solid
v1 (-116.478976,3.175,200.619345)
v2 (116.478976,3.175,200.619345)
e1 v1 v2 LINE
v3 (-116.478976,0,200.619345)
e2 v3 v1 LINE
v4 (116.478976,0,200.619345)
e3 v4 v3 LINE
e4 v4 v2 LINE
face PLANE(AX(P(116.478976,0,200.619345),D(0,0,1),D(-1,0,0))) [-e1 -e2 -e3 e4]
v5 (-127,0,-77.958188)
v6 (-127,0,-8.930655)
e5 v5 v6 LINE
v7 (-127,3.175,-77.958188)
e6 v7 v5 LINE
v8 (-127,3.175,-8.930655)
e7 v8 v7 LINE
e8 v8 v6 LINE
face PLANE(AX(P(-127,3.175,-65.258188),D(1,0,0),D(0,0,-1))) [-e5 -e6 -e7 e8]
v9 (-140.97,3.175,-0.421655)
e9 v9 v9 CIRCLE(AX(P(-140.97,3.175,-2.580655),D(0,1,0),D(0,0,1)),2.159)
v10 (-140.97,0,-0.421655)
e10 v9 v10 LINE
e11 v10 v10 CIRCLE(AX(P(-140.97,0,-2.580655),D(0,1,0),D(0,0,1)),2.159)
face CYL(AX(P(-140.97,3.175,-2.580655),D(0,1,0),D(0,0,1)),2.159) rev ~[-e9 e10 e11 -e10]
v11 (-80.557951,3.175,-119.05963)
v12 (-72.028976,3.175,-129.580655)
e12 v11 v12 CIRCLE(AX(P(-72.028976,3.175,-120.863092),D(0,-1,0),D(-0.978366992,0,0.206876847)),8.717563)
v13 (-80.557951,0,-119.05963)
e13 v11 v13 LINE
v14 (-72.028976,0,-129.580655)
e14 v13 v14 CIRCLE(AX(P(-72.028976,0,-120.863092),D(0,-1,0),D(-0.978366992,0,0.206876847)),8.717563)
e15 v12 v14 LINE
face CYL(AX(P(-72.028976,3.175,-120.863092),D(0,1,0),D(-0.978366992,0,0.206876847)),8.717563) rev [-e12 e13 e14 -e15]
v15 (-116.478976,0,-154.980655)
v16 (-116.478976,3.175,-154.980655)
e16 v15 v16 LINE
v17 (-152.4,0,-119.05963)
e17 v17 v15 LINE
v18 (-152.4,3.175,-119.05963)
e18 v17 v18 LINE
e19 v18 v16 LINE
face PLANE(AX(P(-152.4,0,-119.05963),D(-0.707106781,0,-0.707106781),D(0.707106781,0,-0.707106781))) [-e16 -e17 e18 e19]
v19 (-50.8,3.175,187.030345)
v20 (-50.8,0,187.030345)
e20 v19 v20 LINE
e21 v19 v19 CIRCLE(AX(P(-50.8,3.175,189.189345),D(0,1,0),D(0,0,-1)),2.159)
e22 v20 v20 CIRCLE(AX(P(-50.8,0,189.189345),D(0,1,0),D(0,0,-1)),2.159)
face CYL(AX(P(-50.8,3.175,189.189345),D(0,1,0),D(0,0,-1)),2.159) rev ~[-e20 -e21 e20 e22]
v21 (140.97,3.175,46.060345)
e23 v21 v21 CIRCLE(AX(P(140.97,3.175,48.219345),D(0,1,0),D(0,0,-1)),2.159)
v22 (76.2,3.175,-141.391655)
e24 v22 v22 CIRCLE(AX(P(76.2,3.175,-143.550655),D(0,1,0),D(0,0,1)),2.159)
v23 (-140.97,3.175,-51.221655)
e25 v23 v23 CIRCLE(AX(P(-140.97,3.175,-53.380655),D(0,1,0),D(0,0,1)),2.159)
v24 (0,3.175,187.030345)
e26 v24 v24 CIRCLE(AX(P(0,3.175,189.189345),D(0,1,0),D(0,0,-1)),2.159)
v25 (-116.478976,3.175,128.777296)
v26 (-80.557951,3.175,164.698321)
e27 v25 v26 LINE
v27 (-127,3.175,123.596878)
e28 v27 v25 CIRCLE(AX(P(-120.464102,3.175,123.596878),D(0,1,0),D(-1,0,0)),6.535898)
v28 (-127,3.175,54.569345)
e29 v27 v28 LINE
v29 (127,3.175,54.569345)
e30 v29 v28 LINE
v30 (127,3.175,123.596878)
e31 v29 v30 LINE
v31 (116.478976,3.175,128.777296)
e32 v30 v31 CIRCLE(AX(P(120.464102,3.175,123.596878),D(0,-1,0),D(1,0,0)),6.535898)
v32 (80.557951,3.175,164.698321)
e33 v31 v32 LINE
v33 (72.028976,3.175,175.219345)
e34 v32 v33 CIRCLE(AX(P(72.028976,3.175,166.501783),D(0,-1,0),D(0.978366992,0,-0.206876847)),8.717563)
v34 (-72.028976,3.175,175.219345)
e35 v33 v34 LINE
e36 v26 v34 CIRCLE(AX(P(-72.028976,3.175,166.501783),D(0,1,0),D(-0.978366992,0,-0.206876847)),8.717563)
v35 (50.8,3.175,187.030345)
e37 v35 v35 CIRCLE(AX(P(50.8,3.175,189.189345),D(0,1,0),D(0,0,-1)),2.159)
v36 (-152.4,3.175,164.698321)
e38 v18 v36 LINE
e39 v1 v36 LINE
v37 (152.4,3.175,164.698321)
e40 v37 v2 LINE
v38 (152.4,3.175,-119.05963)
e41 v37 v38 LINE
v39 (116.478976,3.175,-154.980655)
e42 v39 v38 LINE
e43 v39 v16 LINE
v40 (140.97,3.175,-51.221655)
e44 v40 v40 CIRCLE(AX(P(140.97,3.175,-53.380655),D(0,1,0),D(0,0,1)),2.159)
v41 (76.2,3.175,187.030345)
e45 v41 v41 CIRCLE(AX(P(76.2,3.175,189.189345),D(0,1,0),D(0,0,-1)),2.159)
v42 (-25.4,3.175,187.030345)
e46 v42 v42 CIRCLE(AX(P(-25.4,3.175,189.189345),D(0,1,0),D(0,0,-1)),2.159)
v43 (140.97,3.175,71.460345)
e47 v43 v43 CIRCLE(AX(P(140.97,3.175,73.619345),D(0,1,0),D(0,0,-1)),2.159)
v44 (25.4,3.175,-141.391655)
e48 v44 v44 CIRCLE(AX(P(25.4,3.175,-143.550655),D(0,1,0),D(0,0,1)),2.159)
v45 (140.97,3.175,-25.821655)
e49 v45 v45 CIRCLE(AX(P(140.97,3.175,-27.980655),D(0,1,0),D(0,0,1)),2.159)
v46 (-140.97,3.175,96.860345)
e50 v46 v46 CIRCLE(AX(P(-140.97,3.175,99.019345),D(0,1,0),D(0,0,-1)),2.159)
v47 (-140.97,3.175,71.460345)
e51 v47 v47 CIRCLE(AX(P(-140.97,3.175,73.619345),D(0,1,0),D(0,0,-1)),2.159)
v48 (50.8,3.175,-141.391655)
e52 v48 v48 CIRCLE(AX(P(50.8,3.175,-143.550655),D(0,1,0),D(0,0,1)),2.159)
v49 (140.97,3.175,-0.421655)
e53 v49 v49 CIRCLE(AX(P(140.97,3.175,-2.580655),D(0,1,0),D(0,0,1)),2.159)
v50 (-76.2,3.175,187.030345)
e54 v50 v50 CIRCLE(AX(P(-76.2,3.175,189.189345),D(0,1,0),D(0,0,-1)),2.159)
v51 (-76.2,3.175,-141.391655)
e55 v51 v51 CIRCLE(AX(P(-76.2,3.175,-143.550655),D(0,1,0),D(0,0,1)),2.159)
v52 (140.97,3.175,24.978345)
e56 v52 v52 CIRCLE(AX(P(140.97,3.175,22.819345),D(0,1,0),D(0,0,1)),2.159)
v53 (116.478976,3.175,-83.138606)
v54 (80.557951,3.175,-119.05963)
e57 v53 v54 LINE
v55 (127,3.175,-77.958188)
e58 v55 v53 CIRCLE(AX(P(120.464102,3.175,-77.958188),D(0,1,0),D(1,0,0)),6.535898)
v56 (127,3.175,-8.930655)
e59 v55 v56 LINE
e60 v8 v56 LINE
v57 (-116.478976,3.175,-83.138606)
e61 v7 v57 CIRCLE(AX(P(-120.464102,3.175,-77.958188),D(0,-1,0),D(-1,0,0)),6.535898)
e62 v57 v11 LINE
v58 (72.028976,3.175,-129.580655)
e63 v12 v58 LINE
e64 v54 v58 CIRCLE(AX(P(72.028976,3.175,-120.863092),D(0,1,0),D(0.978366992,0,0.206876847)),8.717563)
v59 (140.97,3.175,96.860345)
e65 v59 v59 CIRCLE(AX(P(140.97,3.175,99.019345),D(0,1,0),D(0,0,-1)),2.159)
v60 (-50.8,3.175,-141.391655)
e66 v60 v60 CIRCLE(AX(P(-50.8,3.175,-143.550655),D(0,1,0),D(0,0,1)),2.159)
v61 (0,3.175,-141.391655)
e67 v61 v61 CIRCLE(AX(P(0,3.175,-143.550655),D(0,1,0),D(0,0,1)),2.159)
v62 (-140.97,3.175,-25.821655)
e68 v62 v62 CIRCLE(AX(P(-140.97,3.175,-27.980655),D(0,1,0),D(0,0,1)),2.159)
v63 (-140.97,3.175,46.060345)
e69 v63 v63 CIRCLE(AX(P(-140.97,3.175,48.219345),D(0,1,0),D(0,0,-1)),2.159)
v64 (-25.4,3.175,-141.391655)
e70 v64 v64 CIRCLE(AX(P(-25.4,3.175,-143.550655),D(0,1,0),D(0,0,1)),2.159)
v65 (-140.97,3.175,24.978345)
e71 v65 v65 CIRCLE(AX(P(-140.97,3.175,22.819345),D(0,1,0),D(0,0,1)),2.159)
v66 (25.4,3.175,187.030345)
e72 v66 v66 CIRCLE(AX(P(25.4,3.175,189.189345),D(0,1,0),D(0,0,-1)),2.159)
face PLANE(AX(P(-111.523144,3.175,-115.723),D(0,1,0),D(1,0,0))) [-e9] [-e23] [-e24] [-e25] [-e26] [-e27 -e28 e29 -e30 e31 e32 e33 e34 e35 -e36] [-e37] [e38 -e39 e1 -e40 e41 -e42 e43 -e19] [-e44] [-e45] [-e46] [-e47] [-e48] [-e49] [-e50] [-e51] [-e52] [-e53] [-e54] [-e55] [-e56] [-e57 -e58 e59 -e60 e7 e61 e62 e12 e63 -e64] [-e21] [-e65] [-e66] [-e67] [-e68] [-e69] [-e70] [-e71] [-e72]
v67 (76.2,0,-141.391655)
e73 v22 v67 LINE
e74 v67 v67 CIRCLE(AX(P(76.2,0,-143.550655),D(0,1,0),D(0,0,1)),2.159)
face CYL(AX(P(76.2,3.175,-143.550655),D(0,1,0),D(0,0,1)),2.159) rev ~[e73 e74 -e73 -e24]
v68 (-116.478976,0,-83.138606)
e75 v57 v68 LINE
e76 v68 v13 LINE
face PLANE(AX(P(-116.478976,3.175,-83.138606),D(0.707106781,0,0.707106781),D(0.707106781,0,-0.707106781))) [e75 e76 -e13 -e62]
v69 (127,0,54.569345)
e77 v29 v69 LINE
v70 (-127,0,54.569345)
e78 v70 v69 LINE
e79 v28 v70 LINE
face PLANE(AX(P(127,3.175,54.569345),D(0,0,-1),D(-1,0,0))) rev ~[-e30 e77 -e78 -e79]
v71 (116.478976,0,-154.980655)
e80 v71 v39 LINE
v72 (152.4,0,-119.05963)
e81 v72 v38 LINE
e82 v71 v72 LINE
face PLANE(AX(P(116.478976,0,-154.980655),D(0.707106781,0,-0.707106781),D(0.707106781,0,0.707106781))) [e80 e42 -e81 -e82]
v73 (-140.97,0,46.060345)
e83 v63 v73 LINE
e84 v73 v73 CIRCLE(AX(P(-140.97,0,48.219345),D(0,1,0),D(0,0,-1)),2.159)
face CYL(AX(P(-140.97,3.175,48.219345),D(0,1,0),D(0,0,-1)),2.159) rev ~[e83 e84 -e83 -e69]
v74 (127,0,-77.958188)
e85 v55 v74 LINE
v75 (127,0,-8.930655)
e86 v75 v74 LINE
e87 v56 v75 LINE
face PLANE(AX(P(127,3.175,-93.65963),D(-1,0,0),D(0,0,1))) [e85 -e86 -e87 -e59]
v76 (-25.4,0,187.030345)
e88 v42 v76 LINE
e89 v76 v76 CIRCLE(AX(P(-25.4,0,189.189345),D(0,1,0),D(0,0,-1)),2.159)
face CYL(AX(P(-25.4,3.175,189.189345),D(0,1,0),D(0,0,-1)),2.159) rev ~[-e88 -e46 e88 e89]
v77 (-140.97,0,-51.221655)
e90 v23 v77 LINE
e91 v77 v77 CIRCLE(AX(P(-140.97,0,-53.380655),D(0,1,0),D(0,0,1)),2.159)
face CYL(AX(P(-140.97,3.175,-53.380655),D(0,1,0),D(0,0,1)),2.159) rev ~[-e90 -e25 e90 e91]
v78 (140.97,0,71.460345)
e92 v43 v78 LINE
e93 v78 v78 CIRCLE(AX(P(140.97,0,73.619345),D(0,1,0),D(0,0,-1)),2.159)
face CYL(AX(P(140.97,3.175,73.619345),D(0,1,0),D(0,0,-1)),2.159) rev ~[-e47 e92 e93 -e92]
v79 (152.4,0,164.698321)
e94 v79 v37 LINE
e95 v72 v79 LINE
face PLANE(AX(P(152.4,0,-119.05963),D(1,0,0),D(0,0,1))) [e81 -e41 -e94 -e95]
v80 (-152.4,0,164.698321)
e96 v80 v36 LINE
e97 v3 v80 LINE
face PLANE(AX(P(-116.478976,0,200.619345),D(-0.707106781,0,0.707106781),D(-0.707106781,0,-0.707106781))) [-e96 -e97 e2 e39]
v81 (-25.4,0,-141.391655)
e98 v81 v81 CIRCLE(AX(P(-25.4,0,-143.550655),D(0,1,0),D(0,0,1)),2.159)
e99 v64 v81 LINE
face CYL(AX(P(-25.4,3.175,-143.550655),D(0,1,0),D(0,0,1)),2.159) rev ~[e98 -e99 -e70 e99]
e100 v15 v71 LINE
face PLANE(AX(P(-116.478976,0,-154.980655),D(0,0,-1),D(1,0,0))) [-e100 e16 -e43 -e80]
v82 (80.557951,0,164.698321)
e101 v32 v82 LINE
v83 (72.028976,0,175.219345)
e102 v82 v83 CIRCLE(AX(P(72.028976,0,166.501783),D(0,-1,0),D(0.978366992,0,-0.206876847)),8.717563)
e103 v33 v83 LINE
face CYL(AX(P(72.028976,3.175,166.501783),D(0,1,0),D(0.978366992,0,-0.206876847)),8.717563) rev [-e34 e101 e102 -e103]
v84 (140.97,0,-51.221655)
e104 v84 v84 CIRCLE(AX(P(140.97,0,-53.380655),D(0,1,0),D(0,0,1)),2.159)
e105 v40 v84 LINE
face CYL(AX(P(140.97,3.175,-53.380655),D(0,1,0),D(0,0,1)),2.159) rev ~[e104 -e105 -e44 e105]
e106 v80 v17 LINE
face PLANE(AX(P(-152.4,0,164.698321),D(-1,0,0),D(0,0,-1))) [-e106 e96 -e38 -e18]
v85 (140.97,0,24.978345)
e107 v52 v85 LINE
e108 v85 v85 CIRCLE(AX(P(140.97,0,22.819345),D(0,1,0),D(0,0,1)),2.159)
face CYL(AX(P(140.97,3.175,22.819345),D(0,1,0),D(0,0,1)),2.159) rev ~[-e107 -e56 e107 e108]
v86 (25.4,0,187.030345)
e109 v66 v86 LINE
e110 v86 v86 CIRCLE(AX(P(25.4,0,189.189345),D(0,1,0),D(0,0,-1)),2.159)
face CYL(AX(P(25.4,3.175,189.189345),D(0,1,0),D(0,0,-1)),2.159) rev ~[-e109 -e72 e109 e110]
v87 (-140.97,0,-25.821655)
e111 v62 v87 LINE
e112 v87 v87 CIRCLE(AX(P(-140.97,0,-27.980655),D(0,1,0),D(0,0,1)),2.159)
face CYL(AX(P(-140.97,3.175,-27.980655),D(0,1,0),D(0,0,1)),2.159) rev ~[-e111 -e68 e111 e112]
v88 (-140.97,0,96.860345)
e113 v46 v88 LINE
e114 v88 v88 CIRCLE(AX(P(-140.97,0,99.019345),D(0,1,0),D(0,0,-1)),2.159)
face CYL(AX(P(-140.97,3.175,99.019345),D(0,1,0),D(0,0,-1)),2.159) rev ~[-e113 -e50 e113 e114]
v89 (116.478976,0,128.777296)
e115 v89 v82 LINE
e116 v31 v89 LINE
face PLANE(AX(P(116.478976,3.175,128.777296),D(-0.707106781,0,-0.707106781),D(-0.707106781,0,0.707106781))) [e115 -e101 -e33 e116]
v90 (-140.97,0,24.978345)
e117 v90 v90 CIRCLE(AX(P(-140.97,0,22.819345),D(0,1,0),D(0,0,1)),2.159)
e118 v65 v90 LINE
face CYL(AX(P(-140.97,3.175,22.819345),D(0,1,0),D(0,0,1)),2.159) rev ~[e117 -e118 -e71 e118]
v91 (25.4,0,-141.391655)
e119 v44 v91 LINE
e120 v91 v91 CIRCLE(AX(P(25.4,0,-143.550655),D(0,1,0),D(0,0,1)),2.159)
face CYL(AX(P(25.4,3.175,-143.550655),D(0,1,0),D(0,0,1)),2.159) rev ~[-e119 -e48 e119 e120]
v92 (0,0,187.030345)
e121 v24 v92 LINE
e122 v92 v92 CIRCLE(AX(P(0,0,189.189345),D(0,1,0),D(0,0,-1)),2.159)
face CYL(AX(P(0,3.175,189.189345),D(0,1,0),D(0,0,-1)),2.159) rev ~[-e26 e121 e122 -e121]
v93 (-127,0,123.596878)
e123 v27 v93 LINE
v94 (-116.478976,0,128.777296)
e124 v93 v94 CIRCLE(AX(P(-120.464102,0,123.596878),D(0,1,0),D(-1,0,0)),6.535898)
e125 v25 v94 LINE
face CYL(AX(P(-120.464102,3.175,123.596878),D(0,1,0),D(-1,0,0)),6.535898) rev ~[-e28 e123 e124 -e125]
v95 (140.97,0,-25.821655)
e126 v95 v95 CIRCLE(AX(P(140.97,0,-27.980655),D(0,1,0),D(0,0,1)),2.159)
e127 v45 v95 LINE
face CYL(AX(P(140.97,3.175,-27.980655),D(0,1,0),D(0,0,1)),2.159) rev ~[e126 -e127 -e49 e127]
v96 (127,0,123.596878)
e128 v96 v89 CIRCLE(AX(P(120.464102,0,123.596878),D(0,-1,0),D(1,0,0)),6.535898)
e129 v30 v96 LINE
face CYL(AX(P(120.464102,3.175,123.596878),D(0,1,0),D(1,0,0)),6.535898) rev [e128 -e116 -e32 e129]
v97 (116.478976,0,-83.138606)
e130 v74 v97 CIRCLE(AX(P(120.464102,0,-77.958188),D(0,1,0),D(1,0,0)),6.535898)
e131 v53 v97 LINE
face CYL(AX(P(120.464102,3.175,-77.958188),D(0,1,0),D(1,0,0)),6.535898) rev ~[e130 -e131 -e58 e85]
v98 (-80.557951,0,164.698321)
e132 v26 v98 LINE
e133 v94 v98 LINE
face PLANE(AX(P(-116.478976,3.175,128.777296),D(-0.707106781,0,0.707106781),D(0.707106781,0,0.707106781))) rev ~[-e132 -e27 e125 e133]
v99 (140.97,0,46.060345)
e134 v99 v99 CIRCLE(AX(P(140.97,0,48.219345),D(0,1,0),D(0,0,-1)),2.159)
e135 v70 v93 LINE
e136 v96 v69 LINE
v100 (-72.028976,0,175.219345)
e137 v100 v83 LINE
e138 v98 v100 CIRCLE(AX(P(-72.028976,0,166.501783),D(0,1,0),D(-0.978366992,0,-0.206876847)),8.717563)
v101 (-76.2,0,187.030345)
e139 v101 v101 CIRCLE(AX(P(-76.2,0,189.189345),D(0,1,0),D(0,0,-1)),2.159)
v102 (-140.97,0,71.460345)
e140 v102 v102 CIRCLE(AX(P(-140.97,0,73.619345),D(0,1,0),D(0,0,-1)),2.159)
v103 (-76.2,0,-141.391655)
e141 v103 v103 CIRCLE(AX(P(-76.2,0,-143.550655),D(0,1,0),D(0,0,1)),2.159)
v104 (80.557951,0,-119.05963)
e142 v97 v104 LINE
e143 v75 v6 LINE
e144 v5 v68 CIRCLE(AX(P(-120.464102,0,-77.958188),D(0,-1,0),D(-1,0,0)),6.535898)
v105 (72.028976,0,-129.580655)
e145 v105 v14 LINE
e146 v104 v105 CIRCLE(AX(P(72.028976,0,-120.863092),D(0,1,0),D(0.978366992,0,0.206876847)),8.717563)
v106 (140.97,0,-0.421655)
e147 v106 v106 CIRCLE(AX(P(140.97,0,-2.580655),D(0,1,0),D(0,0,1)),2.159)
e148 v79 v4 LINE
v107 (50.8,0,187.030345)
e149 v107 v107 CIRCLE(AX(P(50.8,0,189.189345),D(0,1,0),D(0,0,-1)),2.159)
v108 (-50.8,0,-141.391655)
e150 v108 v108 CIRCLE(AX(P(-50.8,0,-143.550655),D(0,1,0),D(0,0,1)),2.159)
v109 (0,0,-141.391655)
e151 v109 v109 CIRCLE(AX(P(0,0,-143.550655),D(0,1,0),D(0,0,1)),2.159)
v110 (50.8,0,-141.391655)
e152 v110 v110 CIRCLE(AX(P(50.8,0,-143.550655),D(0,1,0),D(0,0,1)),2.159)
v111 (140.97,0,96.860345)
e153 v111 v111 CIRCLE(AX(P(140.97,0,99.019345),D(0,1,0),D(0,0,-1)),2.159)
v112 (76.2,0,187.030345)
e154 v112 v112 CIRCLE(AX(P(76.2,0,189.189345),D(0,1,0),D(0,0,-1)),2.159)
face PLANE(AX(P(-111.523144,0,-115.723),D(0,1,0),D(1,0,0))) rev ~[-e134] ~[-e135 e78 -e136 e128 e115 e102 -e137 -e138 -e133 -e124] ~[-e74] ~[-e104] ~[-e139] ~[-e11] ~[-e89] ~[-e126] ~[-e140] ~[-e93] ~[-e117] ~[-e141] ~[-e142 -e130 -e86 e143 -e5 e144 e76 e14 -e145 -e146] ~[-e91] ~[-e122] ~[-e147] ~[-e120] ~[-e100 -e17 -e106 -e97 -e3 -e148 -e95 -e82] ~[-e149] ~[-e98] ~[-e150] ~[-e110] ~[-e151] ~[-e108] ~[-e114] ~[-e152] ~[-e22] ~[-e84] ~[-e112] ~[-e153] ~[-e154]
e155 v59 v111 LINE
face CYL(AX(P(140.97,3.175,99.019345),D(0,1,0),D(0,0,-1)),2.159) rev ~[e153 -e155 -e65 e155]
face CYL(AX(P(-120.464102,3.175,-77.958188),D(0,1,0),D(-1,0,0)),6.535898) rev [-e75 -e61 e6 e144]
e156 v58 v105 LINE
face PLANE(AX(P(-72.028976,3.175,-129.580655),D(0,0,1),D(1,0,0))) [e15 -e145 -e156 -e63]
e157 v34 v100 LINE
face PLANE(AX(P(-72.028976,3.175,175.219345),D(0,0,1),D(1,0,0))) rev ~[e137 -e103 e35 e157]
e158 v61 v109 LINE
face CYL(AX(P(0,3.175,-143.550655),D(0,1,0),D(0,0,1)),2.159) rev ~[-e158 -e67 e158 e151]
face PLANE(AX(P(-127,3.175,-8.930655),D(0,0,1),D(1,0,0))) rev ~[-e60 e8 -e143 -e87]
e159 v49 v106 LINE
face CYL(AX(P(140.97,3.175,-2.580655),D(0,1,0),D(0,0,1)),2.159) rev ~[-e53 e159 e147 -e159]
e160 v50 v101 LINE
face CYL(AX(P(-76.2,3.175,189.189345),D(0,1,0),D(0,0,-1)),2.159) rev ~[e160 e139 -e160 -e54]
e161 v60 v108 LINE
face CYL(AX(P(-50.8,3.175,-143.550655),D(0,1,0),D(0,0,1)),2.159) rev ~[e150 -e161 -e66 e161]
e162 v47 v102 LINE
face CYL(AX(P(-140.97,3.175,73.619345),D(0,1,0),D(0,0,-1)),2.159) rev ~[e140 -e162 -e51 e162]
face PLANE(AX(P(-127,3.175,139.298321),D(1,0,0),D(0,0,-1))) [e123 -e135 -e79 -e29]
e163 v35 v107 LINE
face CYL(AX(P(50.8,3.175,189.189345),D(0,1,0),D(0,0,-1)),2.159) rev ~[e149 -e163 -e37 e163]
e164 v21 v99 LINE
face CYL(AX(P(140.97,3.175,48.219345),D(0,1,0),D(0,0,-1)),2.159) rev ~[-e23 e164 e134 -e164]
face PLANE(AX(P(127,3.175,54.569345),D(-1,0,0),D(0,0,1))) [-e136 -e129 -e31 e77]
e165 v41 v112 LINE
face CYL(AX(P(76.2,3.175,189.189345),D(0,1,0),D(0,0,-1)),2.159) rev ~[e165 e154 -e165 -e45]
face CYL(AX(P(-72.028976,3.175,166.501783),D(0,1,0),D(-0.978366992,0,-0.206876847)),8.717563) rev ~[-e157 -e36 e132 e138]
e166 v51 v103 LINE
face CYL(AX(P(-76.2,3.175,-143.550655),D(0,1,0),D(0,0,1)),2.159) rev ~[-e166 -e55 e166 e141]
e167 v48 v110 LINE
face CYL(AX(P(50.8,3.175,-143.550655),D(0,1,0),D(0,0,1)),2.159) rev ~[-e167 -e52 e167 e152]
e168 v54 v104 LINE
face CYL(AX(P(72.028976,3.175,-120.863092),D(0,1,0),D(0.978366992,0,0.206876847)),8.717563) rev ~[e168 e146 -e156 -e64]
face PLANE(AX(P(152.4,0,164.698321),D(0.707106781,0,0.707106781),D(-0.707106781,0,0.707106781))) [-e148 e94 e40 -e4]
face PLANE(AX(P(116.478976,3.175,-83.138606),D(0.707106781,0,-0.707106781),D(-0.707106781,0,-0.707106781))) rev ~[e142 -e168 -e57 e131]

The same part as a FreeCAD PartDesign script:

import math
import FreeCAD as App
import Part
import Sketcher
Q = App.Units.Quantity


def add_polygon(sketch, points):
    """Adds a closed chain of lines whose ends are joined by coincident constraints."""
    first, n = sketch.GeometryCount, len(points)
    for a, b in zip(points, points[1:] + points[:1]):
        sketch.addGeometry(Part.LineSegment(App.Vector(*a, 0), App.Vector(*b, 0)), False)
    for i in range(n):
        sketch.addConstraint(Sketcher.Constraint("Coincident", first + i, 2, first + (i + 1) % n, 1))

doc = App.newDocument("Part")
params = doc.addObject("Spreadsheet::Sheet", "Params")
for row, (alias, value) in enumerate([
    ("sketch1_length", "2 in"),
    ("pad1_length", "0.125 in"),
    ("sketch2_width", "10 in"),
    ("sketch2_length", "2 in"),
    ("sketch3_width", "1 in"),
    ("sketch3_length", "2 in"),
    ("sketch3_width2", "0.5 in"),
    ("sketch3_width3", "2.25 in"),
    ("pad2_length", "0.125 in"),
    ("sketch4_diameter", "0.17 in"),
], start=1):
    params.set(f"A{row}", alias)
    params.set(f"B{row}", "=" + value)
    params.setAlias(f"B{row}", alias)

body = doc.addObject("PartDesign::Body", "Body")

# Sketch on XZ plane
sketch1 = body.newObject("Sketcher::SketchObject", "Sketch")
sketch1.AttachmentSupport = (doc.getObject("XZ_Plane"), [""])
sketch1.MapMode = "FlatFace"
add_polygon(sketch1, [(-116.478976, -154.980655), (-152.4, -119.05963), (-152.4, 164.698321), (-116.478976, 200.619345), (116.478976, 200.619345), (152.4, 164.698321), (152.4, -119.05963), (116.478976, -154.980655)])  # lines 0-7
sketch1.addConstraint([
    Sketcher.Constraint("Vertical", 1),
    Sketcher.Constraint("Horizontal", 3),
    Sketcher.Constraint("Vertical", 5),
    Sketcher.Constraint("Horizontal", 7),
    Sketcher.Constraint("Symmetric", 1, 2, 4, 2, -2),
    Sketcher.Constraint("Perpendicular", 0, 2),
    Sketcher.Constraint("Perpendicular", 2, 4),
    Sketcher.Constraint("Perpendicular", 4, 6),
    Sketcher.Constraint("Horizontal", 0, 2, 5, 2),
    Sketcher.Constraint("Vertical", 3, 2, 6, 2),
    Sketcher.Constraint("Vertical", 2, 2, 7, 2),
    Sketcher.Constraint("Distance", 0, Q("2 in")),
    Sketcher.Constraint("DistanceX", 0, 2, -1, 1, Q("6 in")),
    Sketcher.Constraint("DistanceY", 6, 2, 3, 2, Q("14 in")),
    Sketcher.Constraint("DistanceY", 0, 2, -1, 1, Q("119.05963 mm")),
])
sketch1.setExpression("Constraints[19]", "Params.sketch1_length")
pad1 = body.newObject("PartDesign::Pad", "Pad")
pad1.Profile = sketch1
pad1.setExpression("Length", "Params.pad1_length")
pad1.Reversed = True

# Sketch on XZ plane
sketch2 = body.newObject("Sketcher::SketchObject", "Sketch001")
sketch2.AttachmentSupport = (doc.getObject("XZ_Plane"), [""])
sketch2.MapMode = "FlatFace"
sketch2.AttachmentOffset = App.Placement(App.Vector(0, 0, -0.125 * 25.4), App.Rotation())
add_polygon(sketch2, [(91.078976, -129.580655), (-91.078976, -129.580655), (-127, -93.65963), (-127, -8.930655), (127, -8.930655), (127, -93.65963)])  # lines 0-5
add_polygon(sketch2, [(91.078976, 175.219345), (127, 139.298321), (127, 54.569345), (-127, 54.569345), (-127, 139.298321), (-91.078976, 175.219345)])  # lines 6-11
sketch2.addConstraint([
    Sketcher.Constraint("Horizontal", 0),
    Sketcher.Constraint("Vertical", 2),
    Sketcher.Constraint("Horizontal", 3),
    Sketcher.Constraint("Vertical", 4),
    Sketcher.Constraint("Vertical", 7),
    Sketcher.Constraint("Horizontal", 8),
    Sketcher.Constraint("Vertical", 9),
    Sketcher.Constraint("Horizontal", 11),
    Sketcher.Constraint("Symmetric", 1, 2, 4, 2, -2),
    Sketcher.Constraint("Symmetric", 6, 2, 9, 2, -2),
    Sketcher.Constraint("Perpendicular", 1, 5),
    Sketcher.Constraint("Perpendicular", 5, 6),
    Sketcher.Constraint("Perpendicular", 6, 10),
    Sketcher.Constraint("Vertical", 4, 2, 6, 2),
    Sketcher.Constraint("Vertical", 0, 2, 10, 2),
    Sketcher.Constraint("Vertical", 5, 2, 11, 2),
    Sketcher.Constraint("Equal", 4, 7),
    Sketcher.Constraint("DistanceX", 3, 1, 3, 2, Q("10 in")),
    Sketcher.Constraint("Distance", 1, Q("2 in")),
    Sketcher.Constraint("DistanceY", 3, 2, 7, 2, Q("2.5 in")),
    Sketcher.Constraint("DistanceY", 0, 2, 2, 2, Q("4.75 in")),
    Sketcher.Constraint("DistanceY", 1, 2, -1, 1, Q("93.65963 mm")),
])
sketch2.setExpression("Constraints[29]", "Params.sketch2_width")
sketch2.setExpression("Constraints[30]", "Params.sketch2_length")
pocket1 = body.newObject("PartDesign::Pocket", "Pocket")
pocket1.Profile = sketch2
pocket1.Type = "ThroughAll"
pocket1.Reversed = True

# Sketch on XZ plane
sketch3 = body.newObject("Sketcher::SketchObject", "Sketch002")
sketch3.AttachmentSupport = (doc.getObject("XZ_Plane"), [""])
sketch3.MapMode = "FlatFace"
sketch3.AttachmentOffset = App.Placement(App.Vector(0, 0, -0.125 * 25.4), App.Rotation())
sketch3.addGeometry([
    Part.LineSegment(App.Vector(-116.478976, -83.138606, 0), App.Vector(-80.557951, -119.05963, 0)),  # 0
    Part.ArcOfCircle(Part.Circle(App.Vector(-72.028976, -120.863092, 0), App.Vector(0, 0, 1), 8.717563), math.radians(168.06061), math.radians(270)),  # 1
    Part.LineSegment(App.Vector(-72.028976, -129.580655, 0), App.Vector(-59.328976, -129.580655, 0)),  # 2
    Part.LineSegment(App.Vector(-59.328976, -129.580655, 0), App.Vector(-59.328976, -154.980655, 0)),  # 3
    Part.LineSegment(App.Vector(-59.328976, -154.980655, 0), App.Vector(-116.478976, -154.980655, 0)),  # 4
    Part.LineSegment(App.Vector(-116.478976, -154.980655, 0), App.Vector(-152.4, -119.05963, 0)),  # 5
    Part.LineSegment(App.Vector(-152.4, -119.05963, 0), App.Vector(-152.4, -65.258188, 0)),  # 6
    Part.LineSegment(App.Vector(-152.4, -65.258188, 0), App.Vector(-127, -65.258188, 0)),  # 7
    Part.LineSegment(App.Vector(-127, -65.258188, 0), App.Vector(-127, -77.958188, 0)),  # 8
    Part.ArcOfCircle(Part.Circle(App.Vector(-120.464102, -77.958188, 0), App.Vector(0, 0, 1), 6.535898), math.radians(180), math.radians(307.569907)),  # 9
    Part.LineSegment(App.Vector(127, -77.958188, 0), App.Vector(127, -65.258188, 0)),  # 10
    Part.LineSegment(App.Vector(127, -65.258188, 0), App.Vector(152.4, -65.258188, 0)),  # 11
    Part.LineSegment(App.Vector(152.4, -65.258188, 0), App.Vector(152.4, -119.05963, 0)),  # 12
    Part.LineSegment(App.Vector(152.4, -119.05963, 0), App.Vector(116.478976, -154.980655, 0)),  # 13
    Part.LineSegment(App.Vector(116.478976, -154.980655, 0), App.Vector(59.328976, -154.980655, 0)),  # 14
    Part.LineSegment(App.Vector(59.328976, -154.980655, 0), App.Vector(59.328976, -129.580655, 0)),  # 15
    Part.LineSegment(App.Vector(59.328976, -129.580655, 0), App.Vector(72.028976, -129.580655, 0)),  # 16
    Part.ArcOfCircle(Part.Circle(App.Vector(72.028976, -120.863092, 0), App.Vector(0, 0, 1), 8.717563), math.radians(-90), math.radians(11.93939)),  # 17
    Part.LineSegment(App.Vector(80.557951, -119.05963, 0), App.Vector(116.478976, -83.138606, 0)),  # 18
    Part.ArcOfCircle(Part.Circle(App.Vector(120.464102, -77.958188, 0), App.Vector(0, 0, 1), 6.535898), math.radians(-127.569907), math.radians(0)),  # 19
    Part.LineSegment(App.Vector(116.478976, 128.777296, 0), App.Vector(80.557951, 164.698321, 0)),  # 20
    Part.ArcOfCircle(Part.Circle(App.Vector(72.028976, 166.501783, 0), App.Vector(0, 0, 1), 8.717563), math.radians(-11.93939), math.radians(90)),  # 21
    Part.LineSegment(App.Vector(72.028976, 175.219345, 0), App.Vector(59.328976, 175.219345, 0)),  # 22
    Part.LineSegment(App.Vector(59.328976, 175.219345, 0), App.Vector(59.328976, 200.619345, 0)),  # 23
    Part.LineSegment(App.Vector(59.328976, 200.619345, 0), App.Vector(116.478976, 200.619345, 0)),  # 24
    Part.LineSegment(App.Vector(116.478976, 200.619345, 0), App.Vector(152.4, 164.698321, 0)),  # 25
    Part.LineSegment(App.Vector(152.4, 164.698321, 0), App.Vector(152.4, 110.896878, 0)),  # 26
    Part.LineSegment(App.Vector(152.4, 110.896878, 0), App.Vector(127, 110.896878, 0)),  # 27
    Part.LineSegment(App.Vector(127, 110.896878, 0), App.Vector(127, 123.596878, 0)),  # 28
    Part.ArcOfCircle(Part.Circle(App.Vector(120.464102, 123.596878, 0), App.Vector(0, 0, 1), 6.535898), math.radians(0), math.radians(127.569907)),  # 29
    Part.LineSegment(App.Vector(-127, 123.596878, 0), App.Vector(-127, 110.896878, 0)),  # 30
    Part.LineSegment(App.Vector(-127, 110.896878, 0), App.Vector(-152.4, 110.896878, 0)),  # 31
    Part.LineSegment(App.Vector(-152.4, 110.896878, 0), App.Vector(-152.4, 164.698321, 0)),  # 32
    Part.LineSegment(App.Vector(-152.4, 164.698321, 0), App.Vector(-116.478976, 200.619345, 0)),  # 33
    Part.LineSegment(App.Vector(-116.478976, 200.619345, 0), App.Vector(-59.328976, 200.619345, 0)),  # 34
    Part.LineSegment(App.Vector(-59.328976, 200.619345, 0), App.Vector(-59.328976, 175.219345, 0)),  # 35
    Part.LineSegment(App.Vector(-59.328976, 175.219345, 0), App.Vector(-72.028976, 175.219345, 0)),  # 36
    Part.ArcOfCircle(Part.Circle(App.Vector(-72.028976, 166.501783, 0), App.Vector(0, 0, 1), 8.717563), math.radians(90), math.radians(191.93939)),  # 37
    Part.LineSegment(App.Vector(-80.557951, 164.698321, 0), App.Vector(-116.478976, 128.777296, 0)),  # 38
    Part.ArcOfCircle(Part.Circle(App.Vector(-120.464102, 123.596878, 0), App.Vector(0, 0, 1), 6.535898), math.radians(52.430093), math.radians(180)),  # 39
], False)
sketch3.addConstraint([
    Sketcher.Constraint("Coincident", 0, 2, 1, 1),
    Sketcher.Constraint("Tangent", 1, 2, 2, 1),
    Sketcher.Constraint("Coincident", 2, 2, 3, 1),
    Sketcher.Constraint("Coincident", 3, 2, 4, 1),
    Sketcher.Constraint("Coincident", 4, 2, 5, 1),
    Sketcher.Constraint("Coincident", 5, 2, 6, 1),
    Sketcher.Constraint("Coincident", 6, 2, 7, 1),
    Sketcher.Constraint("Coincident", 7, 2, 8, 1),
    Sketcher.Constraint("Tangent", 8, 2, 9, 1),
    Sketcher.Constraint("Coincident", 9, 2, 0, 1),
    Sketcher.Constraint("Coincident", 10, 2, 11, 1),
    Sketcher.Constraint("Coincident", 11, 2, 12, 1),
    Sketcher.Constraint("Coincident", 12, 2, 13, 1),
    Sketcher.Constraint("Coincident", 13, 2, 14, 1),
    Sketcher.Constraint("Coincident", 14, 2, 15, 1),
    Sketcher.Constraint("Coincident", 15, 2, 16, 1),
    Sketcher.Constraint("Tangent", 16, 2, 17, 1),
    Sketcher.Constraint("Coincident", 17, 2, 18, 1),
    Sketcher.Constraint("Coincident", 18, 2, 19, 1),
    Sketcher.Constraint("Tangent", 19, 2, 10, 1),
    Sketcher.Constraint("Coincident", 20, 2, 21, 1),
    Sketcher.Constraint("Tangent", 21, 2, 22, 1),
    Sketcher.Constraint("Coincident", 22, 2, 23, 1),
    Sketcher.Constraint("Coincident", 23, 2, 24, 1),
    Sketcher.Constraint("Coincident", 24, 2, 25, 1),
    Sketcher.Constraint("Coincident", 25, 2, 26, 1),
    Sketcher.Constraint("Coincident", 26, 2, 27, 1),
    Sketcher.Constraint("Coincident", 27, 2, 28, 1),
    Sketcher.Constraint("Tangent", 28, 2, 29, 1),
    Sketcher.Constraint("Coincident", 29, 2, 20, 1),
    Sketcher.Constraint("Coincident", 30, 2, 31, 1),
    Sketcher.Constraint("Coincident", 31, 2, 32, 1),
    Sketcher.Constraint("Coincident", 32, 2, 33, 1),
    Sketcher.Constraint("Coincident", 33, 2, 34, 1),
    Sketcher.Constraint("Coincident", 34, 2, 35, 1),
    Sketcher.Constraint("Coincident", 35, 2, 36, 1),
    Sketcher.Constraint("Tangent", 36, 2, 37, 1),
    Sketcher.Constraint("Coincident", 37, 2, 38, 1),
    Sketcher.Constraint("Coincident", 38, 2, 39, 1),
    Sketcher.Constraint("Tangent", 39, 2, 30, 1),
    Sketcher.Constraint("Horizontal", 2),
    Sketcher.Constraint("Vertical", 3),
    Sketcher.Constraint("Horizontal", 4),
    Sketcher.Constraint("Vertical", 6),
    Sketcher.Constraint("Horizontal", 7),
    Sketcher.Constraint("Vertical", 8),
    Sketcher.Constraint("Vertical", 10),
    Sketcher.Constraint("Horizontal", 11),
    Sketcher.Constraint("Vertical", 12),
    Sketcher.Constraint("Horizontal", 14),
    Sketcher.Constraint("Vertical", 15),
    Sketcher.Constraint("Horizontal", 16),
    Sketcher.Constraint("Horizontal", 22),
    Sketcher.Constraint("Vertical", 23),
    Sketcher.Constraint("Horizontal", 24),
    Sketcher.Constraint("Vertical", 26),
    Sketcher.Constraint("Horizontal", 27),
    Sketcher.Constraint("Vertical", 28),
    Sketcher.Constraint("Vertical", 30),
    Sketcher.Constraint("Horizontal", 31),
    Sketcher.Constraint("Vertical", 32),
    Sketcher.Constraint("Horizontal", 34),
    Sketcher.Constraint("Vertical", 35),
    Sketcher.Constraint("Horizontal", 36),
    Sketcher.Constraint("Equal", 1, 17),
    Sketcher.Constraint("Equal", 9, 19),
    Sketcher.Constraint("Equal", 17, 21),
    Sketcher.Constraint("Equal", 19, 29),
    Sketcher.Constraint("Equal", 21, 37),
    Sketcher.Constraint("Equal", 29, 39),
    Sketcher.Constraint("Symmetric", 1, 3, 17, 3, -2),
    Sketcher.Constraint("Symmetric", 9, 3, 19, 3, -2),
    Sketcher.Constraint("Symmetric", 21, 3, 37, 3, -2),
    Sketcher.Constraint("Symmetric", 29, 3, 39, 3, -2),
    Sketcher.Constraint("Symmetric", 6, 2, 11, 2, -2),
    Sketcher.Constraint("Symmetric", 4, 2, 13, 2, -2),
    Sketcher.Constraint("Symmetric", 26, 2, 31, 2, -2),
    Sketcher.Constraint("Symmetric", 24, 2, 33, 2, -2),
    Sketcher.Constraint("Parallel", 0, 5),
    Sketcher.Constraint("Perpendicular", 5, 13),
    Sketcher.Constraint("Parallel", 13, 18),
    Sketcher.Constraint("Perpendicular", 18, 20),
    Sketcher.Constraint("Parallel", 20, 25),
    Sketcher.Constraint("Perpendicular", 25, 33),
    Sketcher.Constraint("Parallel", 33, 38),
    Sketcher.Constraint("Horizontal", 0, 2, 5, 2),
    Sketcher.Constraint("Horizontal", 5, 2, 12, 2),
    Sketcher.Constraint("Horizontal", 12, 2, 17, 2),
    Sketcher.Constraint("Horizontal", 20, 2, 25, 2),
    Sketcher.Constraint("Horizontal", 32, 2, 37, 2),
    Sketcher.Constraint("Vertical", 17, 3, 21, 3),
    Sketcher.Constraint("Vertical", 19, 3, 29, 3),
    Sketcher.Constraint("Vertical", 4, 2, 9, 2),
    Sketcher.Constraint("Vertical", 17, 2, 20, 2),
    Sketcher.Constraint("Vertical", 15, 2, 22, 2),
    Sketcher.Constraint("Vertical", 18, 2, 24, 2),
    Sketcher.Constraint("Vertical", 12, 2, 25, 2),
    Sketcher.Constraint("Vertical", 24, 2, 29, 2),
    Sketcher.Constraint("Vertical", 3, 2, 34, 2),
    Sketcher.Constraint("Equal", 4, 14),
    Sketcher.Constraint("Equal", 31, 3),
    Sketcher.Constraint("Equal", 36, 8),
    Sketcher.Constraint("Equal", 12, 26),
    Sketcher.Constraint("Equal", 0, 5),
    Sketcher.Constraint("DistanceX", 7, 1, 7, 2, Q("1 in")),
    Sketcher.Constraint("Distance", 0, Q("2 in")),
    Sketcher.Constraint("DistanceX", 2, 1, 2, 2, Q("0.5 in")),
    Sketcher.Constraint("DistanceX", 5, 2, -1, 1, Q("6 in")),
    Sketcher.Constraint("DistanceX", 4, 2, 4, 1, Q("2.25 in")),
    Sketcher.Constraint("Radius", 9, Q("6.535898 mm")),
    Sketcher.Constraint("DistanceY", 0, 2, -1, 1, Q("119.05963 mm")),
    Sketcher.Constraint("DistanceY", -1, 1, 20, 2, Q("164.698321 mm")),
])
sketch3.setExpression("Constraints[104]", "Params.sketch3_width")
sketch3.setExpression("Constraints[105]", "Params.sketch3_length")
sketch3.setExpression("Constraints[106]", "Params.sketch3_width2")
sketch3.setExpression("Constraints[108]", "Params.sketch3_width3")
pad2 = body.newObject("PartDesign::Pad", "Pad001")
pad2.Profile = sketch3
pad2.setExpression("Length", "Params.pad2_length")

# Sketch on XZ plane
sketch4 = body.newObject("Sketcher::SketchObject", "Sketch003")
sketch4.AttachmentSupport = (doc.getObject("XZ_Plane"), [""])
sketch4.MapMode = "FlatFace"
sketch4.AttachmentOffset = App.Placement(App.Vector(0, 0, -0.125 * 25.4), App.Rotation())
sketch4.addGeometry([
    Part.Circle(App.Vector(0, -143.550655, 0), App.Vector(0, 0, 1), 2.159),  # 0
    Part.Circle(App.Vector(-50.8, -143.550655, 0), App.Vector(0, 0, 1), 2.159),  # 1
    Part.Circle(App.Vector(50.8, -143.550655, 0), App.Vector(0, 0, 1), 2.159),  # 2
    Part.Circle(App.Vector(-25.4, -143.550655, 0), App.Vector(0, 0, 1), 2.159),  # 3
    Part.Circle(App.Vector(25.4, -143.550655, 0), App.Vector(0, 0, 1), 2.159),  # 4
    Part.Circle(App.Vector(-140.97, 22.819345, 0), App.Vector(0, 0, 1), 2.159),  # 5
    Part.Circle(App.Vector(-140.97, -2.580655, 0), App.Vector(0, 0, 1), 2.159),  # 6
    Part.Circle(App.Vector(-140.97, -27.980655, 0), App.Vector(0, 0, 1), 2.159),  # 7
    Part.Circle(App.Vector(140.97, 22.819345, 0), App.Vector(0, 0, 1), 2.159),  # 8
    Part.Circle(App.Vector(140.97, -2.580655, 0), App.Vector(0, 0, 1), 2.159),  # 9
    Part.Circle(App.Vector(140.97, -27.980655, 0), App.Vector(0, 0, 1), 2.159),  # 10
    Part.Circle(App.Vector(140.97, 73.619345, 0), App.Vector(0, 0, 1), 2.159),  # 11
    Part.Circle(App.Vector(140.97, 48.219345, 0), App.Vector(0, 0, 1), 2.159),  # 12
    Part.Circle(App.Vector(-140.97, 73.619345, 0), App.Vector(0, 0, 1), 2.159),  # 13
    Part.Circle(App.Vector(-140.97, 48.219345, 0), App.Vector(0, 0, 1), 2.159),  # 14
    Part.Circle(App.Vector(25.4, 189.189345, 0), App.Vector(0, 0, 1), 2.159),  # 15
    Part.Circle(App.Vector(-25.4, 189.189345, 0), App.Vector(0, 0, 1), 2.159),  # 16
    Part.Circle(App.Vector(50.8, 189.189345, 0), App.Vector(0, 0, 1), 2.159),  # 17
    Part.Circle(App.Vector(-50.8, 189.189345, 0), App.Vector(0, 0, 1), 2.159),  # 18
    Part.Circle(App.Vector(0, 189.189345, 0), App.Vector(0, 0, 1), 2.159),  # 19
    Part.Circle(App.Vector(-76.2, -143.550655, 0), App.Vector(0, 0, 1), 2.159),  # 20
    Part.Circle(App.Vector(76.2, -143.550655, 0), App.Vector(0, 0, 1), 2.159),  # 21
    Part.Circle(App.Vector(-140.97, -53.380655, 0), App.Vector(0, 0, 1), 2.159),  # 22
    Part.Circle(App.Vector(140.97, -53.380655, 0), App.Vector(0, 0, 1), 2.159),  # 23
    Part.Circle(App.Vector(140.97, 99.019345, 0), App.Vector(0, 0, 1), 2.159),  # 24
    Part.Circle(App.Vector(76.2, 189.189345, 0), App.Vector(0, 0, 1), 2.159),  # 25
    Part.Circle(App.Vector(-76.2, 189.189345, 0), App.Vector(0, 0, 1), 2.159),  # 26
    Part.Circle(App.Vector(-140.97, 99.019345, 0), App.Vector(0, 0, 1), 2.159),  # 27
], False)
sketch4.addConstraint([
    Sketcher.Constraint("Equal", 0, 1),
    Sketcher.Constraint("Equal", 1, 2),
    Sketcher.Constraint("Equal", 2, 3),
    Sketcher.Constraint("Equal", 3, 4),
    Sketcher.Constraint("Equal", 4, 5),
    Sketcher.Constraint("Equal", 5, 6),
    Sketcher.Constraint("Equal", 6, 7),
    Sketcher.Constraint("Equal", 7, 8),
    Sketcher.Constraint("Equal", 8, 9),
    Sketcher.Constraint("Equal", 9, 10),
    Sketcher.Constraint("Equal", 10, 11),
    Sketcher.Constraint("Equal", 11, 12),
    Sketcher.Constraint("Equal", 12, 13),
    Sketcher.Constraint("Equal", 13, 14),
    Sketcher.Constraint("Equal", 14, 15),
    Sketcher.Constraint("Equal", 15, 16),
    Sketcher.Constraint("Equal", 16, 17),
    Sketcher.Constraint("Equal", 17, 18),
    Sketcher.Constraint("Equal", 18, 19),
    Sketcher.Constraint("Equal", 19, 20),
    Sketcher.Constraint("Equal", 20, 21),
    Sketcher.Constraint("Equal", 21, 22),
    Sketcher.Constraint("Equal", 22, 23),
    Sketcher.Constraint("Equal", 23, 24),
    Sketcher.Constraint("Equal", 24, 25),
    Sketcher.Constraint("Equal", 25, 26),
    Sketcher.Constraint("Equal", 26, 27),
    Sketcher.Constraint("Symmetric", 1, 3, 2, 3, -2),
    Sketcher.Constraint("Symmetric", 3, 3, 4, 3, -2),
    Sketcher.Constraint("Symmetric", 5, 3, 8, 3, -2),
    Sketcher.Constraint("Symmetric", 6, 3, 9, 3, -2),
    Sketcher.Constraint("Symmetric", 7, 3, 10, 3, -2),
    Sketcher.Constraint("Symmetric", 11, 3, 13, 3, -2),
    Sketcher.Constraint("Symmetric", 12, 3, 14, 3, -2),
    Sketcher.Constraint("Symmetric", 15, 3, 16, 3, -2),
    Sketcher.Constraint("Symmetric", 17, 3, 18, 3, -2),
    Sketcher.Constraint("Symmetric", 20, 3, 21, 3, -2),
    Sketcher.Constraint("Symmetric", 22, 3, 23, 3, -2),
    Sketcher.Constraint("Symmetric", 25, 3, 26, 3, -2),
    Sketcher.Constraint("Symmetric", 24, 3, 27, 3, -2),
    Sketcher.Constraint("PointOnObject", 0, 3, -2),
    Sketcher.Constraint("PointOnObject", 19, 3, -2),
    Sketcher.Constraint("Horizontal", 0, 3, 1, 3),
    Sketcher.Constraint("Horizontal", 2, 3, 3, 3),
    Sketcher.Constraint("Horizontal", 16, 3, 17, 3),
    Sketcher.Constraint("Horizontal", 18, 3, 19, 3),
    Sketcher.Constraint("Horizontal", 4, 3, 20, 3),
    Sketcher.Constraint("Horizontal", 19, 3, 25, 3),
    Sketcher.Constraint("Vertical", 5, 3, 6, 3),
    Sketcher.Constraint("Vertical", 6, 3, 7, 3),
    Sketcher.Constraint("Vertical", 10, 3, 11, 3),
    Sketcher.Constraint("Vertical", 11, 3, 12, 3),
    Sketcher.Constraint("Vertical", 4, 3, 15, 3),
    Sketcher.Constraint("Vertical", 2, 3, 17, 3),
    Sketcher.Constraint("Vertical", 14, 3, 22, 3),
    Sketcher.Constraint("Vertical", 23, 3, 24, 3),
    Sketcher.Constraint("Vertical", 21, 3, 25, 3),
    Sketcher.Constraint("Diameter", 0, Q("0.17 in")),
    Sketcher.Constraint("DistanceX", 1, 3, -1, 1, Q("2 in")),
    Sketcher.Constraint("DistanceX", 3, 3, -1, 1, Q("1 in")),
    Sketcher.Constraint("DistanceX", 20, 3, -1, 1, Q("3 in")),
    Sketcher.Constraint("DistanceY", 6, 3, 5, 3, Q("1 in")),
    Sketcher.Constraint("DistanceY", 7, 3, 6, 3, Q("1 in")),
    Sketcher.Constraint("DistanceY", 8, 3, 11, 3, Q("2 in")),
    Sketcher.Constraint("DistanceY", 8, 3, 12, 3, Q("1 in")),
    Sketcher.Constraint("DistanceY", 22, 3, 7, 3, Q("1 in")),
    Sketcher.Constraint("DistanceY", 11, 3, 24, 3, Q("1 in")),
    Sketcher.Constraint("DistanceX", 5, 3, -1, 1, Q("5.55 in")),
    Sketcher.Constraint("DistanceY", 1, 3, 5, 3, Q("6.55 in")),
    Sketcher.Constraint("DistanceY", 11, 3, 15, 3, Q("4.55 in")),
    Sketcher.Constraint("DistanceY", 0, 3, -1, 1, Q("143.550655 mm")),
])
sketch4.setExpression("Constraints[57]", "Params.sketch4_diameter")
pocket2 = body.newObject("PartDesign::Pocket", "Pocket001")
pocket2.Profile = sketch4
pocket2.Type = "ThroughAll"
pocket2.Reversed = True

doc.recompute()
